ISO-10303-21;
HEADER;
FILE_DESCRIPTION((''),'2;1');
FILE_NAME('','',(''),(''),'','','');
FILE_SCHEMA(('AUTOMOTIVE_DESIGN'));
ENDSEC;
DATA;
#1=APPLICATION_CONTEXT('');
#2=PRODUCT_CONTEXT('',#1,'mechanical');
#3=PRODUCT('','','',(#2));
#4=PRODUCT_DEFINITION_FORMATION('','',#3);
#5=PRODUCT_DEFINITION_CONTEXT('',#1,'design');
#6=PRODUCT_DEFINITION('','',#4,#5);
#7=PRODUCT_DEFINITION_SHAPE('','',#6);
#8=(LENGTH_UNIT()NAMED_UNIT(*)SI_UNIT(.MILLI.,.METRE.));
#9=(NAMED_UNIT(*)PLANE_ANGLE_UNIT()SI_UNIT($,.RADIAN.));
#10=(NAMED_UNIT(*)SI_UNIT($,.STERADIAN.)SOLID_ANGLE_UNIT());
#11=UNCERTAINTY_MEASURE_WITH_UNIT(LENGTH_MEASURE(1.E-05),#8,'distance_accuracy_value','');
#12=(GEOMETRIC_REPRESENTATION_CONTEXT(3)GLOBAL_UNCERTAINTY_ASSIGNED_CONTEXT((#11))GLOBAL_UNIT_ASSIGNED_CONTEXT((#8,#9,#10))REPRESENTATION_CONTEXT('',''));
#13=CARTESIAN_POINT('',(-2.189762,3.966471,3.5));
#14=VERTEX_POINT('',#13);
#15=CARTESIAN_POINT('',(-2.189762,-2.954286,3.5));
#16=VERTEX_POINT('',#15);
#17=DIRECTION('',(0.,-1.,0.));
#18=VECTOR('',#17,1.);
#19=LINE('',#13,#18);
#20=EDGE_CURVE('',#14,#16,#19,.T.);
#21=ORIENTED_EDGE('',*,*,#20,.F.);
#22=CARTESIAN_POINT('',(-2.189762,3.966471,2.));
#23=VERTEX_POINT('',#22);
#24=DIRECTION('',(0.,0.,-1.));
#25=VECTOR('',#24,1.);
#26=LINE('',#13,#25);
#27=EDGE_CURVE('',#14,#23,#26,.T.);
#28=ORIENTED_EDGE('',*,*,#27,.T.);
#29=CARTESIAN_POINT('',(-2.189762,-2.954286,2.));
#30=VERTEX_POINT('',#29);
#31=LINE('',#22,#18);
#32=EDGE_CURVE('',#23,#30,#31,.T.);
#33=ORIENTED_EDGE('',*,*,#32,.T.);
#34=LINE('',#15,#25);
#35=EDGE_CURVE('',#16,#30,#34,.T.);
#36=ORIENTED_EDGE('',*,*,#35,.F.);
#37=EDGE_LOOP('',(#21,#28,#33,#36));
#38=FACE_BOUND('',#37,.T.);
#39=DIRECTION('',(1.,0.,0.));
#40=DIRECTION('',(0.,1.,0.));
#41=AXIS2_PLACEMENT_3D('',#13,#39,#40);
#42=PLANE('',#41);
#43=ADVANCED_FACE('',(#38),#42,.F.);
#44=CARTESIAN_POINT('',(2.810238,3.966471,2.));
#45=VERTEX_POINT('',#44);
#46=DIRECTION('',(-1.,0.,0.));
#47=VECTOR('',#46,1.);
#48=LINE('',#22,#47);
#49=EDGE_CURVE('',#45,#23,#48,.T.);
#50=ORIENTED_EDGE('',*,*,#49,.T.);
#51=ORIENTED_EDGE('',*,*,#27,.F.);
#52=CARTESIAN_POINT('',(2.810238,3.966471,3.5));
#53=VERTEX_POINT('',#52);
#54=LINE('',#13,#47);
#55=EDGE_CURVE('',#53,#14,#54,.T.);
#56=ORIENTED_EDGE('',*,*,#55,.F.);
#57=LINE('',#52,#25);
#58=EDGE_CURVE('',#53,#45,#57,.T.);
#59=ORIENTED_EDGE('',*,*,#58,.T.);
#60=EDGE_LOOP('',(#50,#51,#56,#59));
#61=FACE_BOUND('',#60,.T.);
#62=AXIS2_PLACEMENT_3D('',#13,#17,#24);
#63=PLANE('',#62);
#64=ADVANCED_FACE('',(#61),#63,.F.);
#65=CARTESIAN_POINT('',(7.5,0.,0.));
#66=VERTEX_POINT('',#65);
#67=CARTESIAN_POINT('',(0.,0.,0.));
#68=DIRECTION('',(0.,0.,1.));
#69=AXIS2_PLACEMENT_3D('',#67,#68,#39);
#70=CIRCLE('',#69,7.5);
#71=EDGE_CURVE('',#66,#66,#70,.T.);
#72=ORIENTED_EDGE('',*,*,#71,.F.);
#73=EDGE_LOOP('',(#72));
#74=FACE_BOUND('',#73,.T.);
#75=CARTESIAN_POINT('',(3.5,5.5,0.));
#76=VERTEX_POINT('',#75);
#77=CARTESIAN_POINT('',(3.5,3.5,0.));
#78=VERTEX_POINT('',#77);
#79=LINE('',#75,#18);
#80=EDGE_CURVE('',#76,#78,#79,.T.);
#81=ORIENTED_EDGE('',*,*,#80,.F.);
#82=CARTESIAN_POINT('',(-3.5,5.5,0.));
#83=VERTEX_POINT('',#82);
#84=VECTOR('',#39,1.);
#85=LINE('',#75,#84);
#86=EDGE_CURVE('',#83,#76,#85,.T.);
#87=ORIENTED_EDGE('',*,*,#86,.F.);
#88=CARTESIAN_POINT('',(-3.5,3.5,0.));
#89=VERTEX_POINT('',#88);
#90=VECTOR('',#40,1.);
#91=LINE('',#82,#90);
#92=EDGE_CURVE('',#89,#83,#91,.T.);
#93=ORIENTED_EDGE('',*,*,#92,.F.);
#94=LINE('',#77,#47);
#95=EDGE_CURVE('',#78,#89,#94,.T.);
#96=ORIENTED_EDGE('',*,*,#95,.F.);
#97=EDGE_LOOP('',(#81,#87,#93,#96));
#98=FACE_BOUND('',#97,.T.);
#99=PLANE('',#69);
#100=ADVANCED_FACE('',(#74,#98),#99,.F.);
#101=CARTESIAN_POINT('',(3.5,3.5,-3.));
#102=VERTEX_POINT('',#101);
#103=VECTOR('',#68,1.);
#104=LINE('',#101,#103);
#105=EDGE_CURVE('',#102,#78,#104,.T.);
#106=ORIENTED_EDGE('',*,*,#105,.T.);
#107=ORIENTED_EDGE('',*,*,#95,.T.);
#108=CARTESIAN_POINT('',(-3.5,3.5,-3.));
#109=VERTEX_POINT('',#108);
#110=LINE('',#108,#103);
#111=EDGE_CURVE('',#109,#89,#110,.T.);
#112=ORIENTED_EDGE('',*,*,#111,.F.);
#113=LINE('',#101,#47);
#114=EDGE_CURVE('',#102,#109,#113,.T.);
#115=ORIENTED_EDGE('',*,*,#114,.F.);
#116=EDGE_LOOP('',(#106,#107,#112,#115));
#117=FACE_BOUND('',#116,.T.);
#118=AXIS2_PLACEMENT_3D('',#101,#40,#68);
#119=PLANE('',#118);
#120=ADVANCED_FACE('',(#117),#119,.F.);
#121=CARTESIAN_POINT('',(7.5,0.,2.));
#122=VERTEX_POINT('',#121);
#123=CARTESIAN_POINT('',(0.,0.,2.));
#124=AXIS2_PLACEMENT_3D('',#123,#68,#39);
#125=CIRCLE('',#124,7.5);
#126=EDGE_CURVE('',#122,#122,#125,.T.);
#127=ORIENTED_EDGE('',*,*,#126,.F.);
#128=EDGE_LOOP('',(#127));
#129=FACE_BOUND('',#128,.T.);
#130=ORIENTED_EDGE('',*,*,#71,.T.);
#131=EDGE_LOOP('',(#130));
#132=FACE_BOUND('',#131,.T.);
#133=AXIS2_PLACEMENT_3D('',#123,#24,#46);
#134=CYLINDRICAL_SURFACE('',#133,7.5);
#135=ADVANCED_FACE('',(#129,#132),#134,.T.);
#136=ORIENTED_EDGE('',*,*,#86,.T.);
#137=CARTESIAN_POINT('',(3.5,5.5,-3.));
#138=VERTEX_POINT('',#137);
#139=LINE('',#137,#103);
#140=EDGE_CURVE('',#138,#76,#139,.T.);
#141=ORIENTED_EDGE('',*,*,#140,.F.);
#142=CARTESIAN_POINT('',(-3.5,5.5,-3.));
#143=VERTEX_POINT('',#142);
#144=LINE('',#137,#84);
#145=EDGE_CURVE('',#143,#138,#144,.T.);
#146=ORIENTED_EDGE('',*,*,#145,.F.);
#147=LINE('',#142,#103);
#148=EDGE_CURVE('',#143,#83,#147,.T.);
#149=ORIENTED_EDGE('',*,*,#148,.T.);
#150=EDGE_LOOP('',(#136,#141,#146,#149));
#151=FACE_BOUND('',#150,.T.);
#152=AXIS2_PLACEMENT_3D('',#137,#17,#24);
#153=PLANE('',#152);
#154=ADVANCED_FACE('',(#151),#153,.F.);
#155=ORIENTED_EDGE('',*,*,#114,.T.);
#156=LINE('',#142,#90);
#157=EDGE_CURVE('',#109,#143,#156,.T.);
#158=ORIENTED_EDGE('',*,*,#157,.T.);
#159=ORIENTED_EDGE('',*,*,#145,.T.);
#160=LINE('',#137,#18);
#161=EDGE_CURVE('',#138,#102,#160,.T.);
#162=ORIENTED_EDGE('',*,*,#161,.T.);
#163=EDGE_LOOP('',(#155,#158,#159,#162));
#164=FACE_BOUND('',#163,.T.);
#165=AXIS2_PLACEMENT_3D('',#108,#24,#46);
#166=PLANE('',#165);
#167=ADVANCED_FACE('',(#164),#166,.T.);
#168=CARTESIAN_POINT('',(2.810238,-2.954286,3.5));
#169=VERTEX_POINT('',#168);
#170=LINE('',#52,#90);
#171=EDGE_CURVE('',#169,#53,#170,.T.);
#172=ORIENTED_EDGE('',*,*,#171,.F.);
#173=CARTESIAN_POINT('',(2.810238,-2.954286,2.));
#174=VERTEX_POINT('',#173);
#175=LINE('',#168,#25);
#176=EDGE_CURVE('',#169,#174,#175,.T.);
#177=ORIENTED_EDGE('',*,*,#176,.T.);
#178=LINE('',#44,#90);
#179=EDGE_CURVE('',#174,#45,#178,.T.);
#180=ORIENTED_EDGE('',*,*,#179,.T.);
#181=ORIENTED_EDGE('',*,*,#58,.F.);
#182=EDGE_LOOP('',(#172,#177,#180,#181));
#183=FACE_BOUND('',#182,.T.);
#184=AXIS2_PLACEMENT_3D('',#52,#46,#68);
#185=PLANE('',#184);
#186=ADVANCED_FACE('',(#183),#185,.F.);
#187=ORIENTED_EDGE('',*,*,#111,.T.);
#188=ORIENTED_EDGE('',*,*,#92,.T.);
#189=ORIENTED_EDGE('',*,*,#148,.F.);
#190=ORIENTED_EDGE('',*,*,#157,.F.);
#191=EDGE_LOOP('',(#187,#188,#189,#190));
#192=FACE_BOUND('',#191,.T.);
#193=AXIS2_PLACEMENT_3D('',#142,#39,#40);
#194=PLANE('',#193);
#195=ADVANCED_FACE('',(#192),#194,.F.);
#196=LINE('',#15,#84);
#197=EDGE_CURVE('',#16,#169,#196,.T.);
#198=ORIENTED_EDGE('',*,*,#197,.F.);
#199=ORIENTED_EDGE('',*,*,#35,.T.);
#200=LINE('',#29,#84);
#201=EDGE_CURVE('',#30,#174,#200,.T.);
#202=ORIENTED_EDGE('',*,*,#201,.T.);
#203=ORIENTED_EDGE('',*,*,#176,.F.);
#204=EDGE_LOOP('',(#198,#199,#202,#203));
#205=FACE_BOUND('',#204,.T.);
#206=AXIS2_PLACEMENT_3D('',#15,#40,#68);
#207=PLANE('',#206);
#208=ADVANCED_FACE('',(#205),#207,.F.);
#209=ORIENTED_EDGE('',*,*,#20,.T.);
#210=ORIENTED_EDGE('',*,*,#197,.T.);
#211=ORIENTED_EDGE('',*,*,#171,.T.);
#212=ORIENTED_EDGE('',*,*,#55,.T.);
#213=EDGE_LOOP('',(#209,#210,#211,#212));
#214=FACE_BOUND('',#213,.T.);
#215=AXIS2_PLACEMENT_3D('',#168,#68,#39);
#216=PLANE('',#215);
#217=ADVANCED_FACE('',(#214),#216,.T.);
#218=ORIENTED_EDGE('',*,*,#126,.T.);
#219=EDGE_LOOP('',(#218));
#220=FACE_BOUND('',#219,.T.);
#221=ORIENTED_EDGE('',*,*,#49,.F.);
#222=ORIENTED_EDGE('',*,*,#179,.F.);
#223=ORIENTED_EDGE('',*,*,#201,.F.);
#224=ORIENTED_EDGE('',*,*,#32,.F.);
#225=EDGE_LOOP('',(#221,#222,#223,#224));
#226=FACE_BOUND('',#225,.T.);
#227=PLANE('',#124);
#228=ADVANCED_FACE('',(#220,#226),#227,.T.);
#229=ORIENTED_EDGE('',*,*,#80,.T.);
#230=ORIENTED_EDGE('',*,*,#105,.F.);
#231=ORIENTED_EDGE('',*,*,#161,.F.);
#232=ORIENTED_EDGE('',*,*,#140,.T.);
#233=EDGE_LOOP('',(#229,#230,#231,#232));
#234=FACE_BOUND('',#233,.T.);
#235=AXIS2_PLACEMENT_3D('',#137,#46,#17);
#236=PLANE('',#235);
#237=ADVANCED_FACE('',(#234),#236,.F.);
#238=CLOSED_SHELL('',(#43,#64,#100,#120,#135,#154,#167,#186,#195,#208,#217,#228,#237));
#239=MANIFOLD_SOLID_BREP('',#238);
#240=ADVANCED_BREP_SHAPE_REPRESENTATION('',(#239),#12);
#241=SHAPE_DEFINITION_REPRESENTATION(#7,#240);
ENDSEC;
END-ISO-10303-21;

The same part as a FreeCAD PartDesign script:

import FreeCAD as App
import Part
import Sketcher
Q = App.Units.Quantity


def add_polygon(sketch, points):
    """Adds a closed chain of lines whose ends are joined by coincident constraints."""
    first, n = sketch.GeometryCount, len(points)
    for a, b in zip(points, points[1:] + points[:1]):
        sketch.addGeometry(Part.LineSegment(App.Vector(*a, 0), App.Vector(*b, 0)), False)
    for i in range(n):
        sketch.addConstraint(Sketcher.Constraint("Coincident", first + i, 2, first + (i + 1) % n, 1))

doc = App.newDocument("Part")
params = doc.addObject("Spreadsheet::Sheet", "Params")
for row, (alias, value) in enumerate([
    ("sketch1_diameter", "15 mm"),
    ("pad1_length", "2 mm"),
    ("sketch2_width", "5 mm"),
    ("pad2_length", "1.5 mm"),
    ("sketch3_width", "7 mm"),
    ("sketch3_height", "2 mm"),
    ("pad3_length", "3 mm"),
], start=1):
    params.set(f"A{row}", alias)
    params.set(f"B{row}", "=" + value)
    params.setAlias(f"B{row}", alias)

body = doc.addObject("PartDesign::Body", "Body")

# Sketch on XY plane
sketch1 = doc.addObject("Sketcher::SketchObject", "Sketch")
body.addObject(sketch1)
sketch1.AttachmentSupport = (doc.XY_Plane, [""])
sketch1.MapMode = "FlatFace"
sketch1.addGeometry(Part.Circle(App.Vector(0, 0, 0), App.Vector(0, 0, 1), 8), False)
sketch1.addConstraint([
    Sketcher.Constraint("Coincident", 0, 3, -1, 1),
    Sketcher.Constraint("Diameter", 0, Q("15 mm")),
])
sketch1.setExpression("Constraints[1]", "Params.sketch1_diameter")
pad1 = doc.addObject("PartDesign::Pad", "Pad")
body.addObject(pad1)
pad1.Profile = sketch1
pad1.setExpression("Length", "Params.pad1_length")

# Sketch on XY plane
sketch2 = doc.addObject("Sketcher::SketchObject", "Sketch001")
body.addObject(sketch2)
sketch2.AttachmentSupport = (doc.XY_Plane, [""])
sketch2.MapMode = "FlatFace"
sketch2.AttachmentOffset = App.Placement(App.Vector(0, 0, 2), App.Rotation())
add_polygon(sketch2, [(-2, 4), (-2, -3), (3, -3), (3, 4)])  # lines 0-3
sketch2.addConstraint([
    Sketcher.Constraint("Vertical", 0),
    Sketcher.Constraint("Horizontal", 1),
    Sketcher.Constraint("Vertical", 2),
    Sketcher.Constraint("Horizontal", 3),
    Sketcher.Constraint("DistanceX", 1, 1, 1, 2, Q("5 mm")),
    Sketcher.Constraint("DistanceY", 0, 2, 0, 1, Q("6.920757 mm")),
    Sketcher.Constraint("DistanceX", 0, 2, -1, 1, Q("2.189762 mm")),
    Sketcher.Constraint("DistanceY", -1, 1, 2, 2, Q("3.966471 mm")),
])
sketch2.setExpression("Constraints[8]", "Params.sketch2_width")
pad2 = doc.addObject("PartDesign::Pad", "Pad001")
body.addObject(pad2)
pad2.Profile = sketch2
pad2.setExpression("Length", "Params.pad2_length")

# Sketch on XY plane
sketch3 = doc.addObject("Sketcher::SketchObject", "Sketch002")
body.addObject(sketch3)
sketch3.AttachmentSupport = (doc.XY_Plane, [""])
sketch3.MapMode = "FlatFace"
add_polygon(sketch3, [(3.5, 5.5), (3.5, 3.5), (-3.5, 3.5), (-3.5, 5.5)])  # lines 0-3
sketch3.addConstraint([
    Sketcher.Constraint("Vertical", 0),
    Sketcher.Constraint("Horizontal", 1),
    Sketcher.Constraint("Vertical", 2),
    Sketcher.Constraint("Horizontal", 3),
    Sketcher.Constraint("DistanceX", 1, 2, 1, 1, Q("7 mm")),
    Sketcher.Constraint("DistanceY", 0, 2, 0, 1, Q("2 mm")),
    Sketcher.Constraint("DistanceX", -1, 1, 0, 2, Q("3.5 mm")),
    Sketcher.Constraint("DistanceY", -1, 1, 0, 2, Q("3.5 mm")),
])
sketch3.setExpression("Constraints[8]", "Params.sketch3_width")
sketch3.setExpression("Constraints[9]", "Params.sketch3_height")
pad3 = doc.addObject("PartDesign::Pad", "Pad002")
body.addObject(pad3)
pad3.Profile = sketch3
pad3.setExpression("Length", "Params.pad3_length")
pad3.Reversed = True

doc.recompute()
